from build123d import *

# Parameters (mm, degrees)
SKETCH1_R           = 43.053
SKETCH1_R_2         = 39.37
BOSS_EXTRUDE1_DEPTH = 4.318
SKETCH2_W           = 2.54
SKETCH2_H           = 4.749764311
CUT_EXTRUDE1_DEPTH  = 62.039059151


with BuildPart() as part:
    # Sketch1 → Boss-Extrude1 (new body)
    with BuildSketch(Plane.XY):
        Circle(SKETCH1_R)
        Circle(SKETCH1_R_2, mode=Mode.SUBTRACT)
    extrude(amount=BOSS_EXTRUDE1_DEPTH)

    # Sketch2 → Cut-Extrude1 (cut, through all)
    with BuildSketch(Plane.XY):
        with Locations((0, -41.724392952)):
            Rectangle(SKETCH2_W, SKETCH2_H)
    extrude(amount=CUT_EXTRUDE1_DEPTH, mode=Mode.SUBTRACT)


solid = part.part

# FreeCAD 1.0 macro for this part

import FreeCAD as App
import Part
import Sketcher

V = App.Vector
Q = App.Units.Quantity


def add_polygon(sketch, points):
    """Adds a closed chain of lines whose ends are joined by coincident constraints."""
    first, n = sketch.GeometryCount, len(points)
    for a, b in zip(points, points[1:] + points[:1]):
        sketch.addGeometry(Part.LineSegment(App.Vector(*a, 0), App.Vector(*b, 0)), False)
    for i in range(n):
        sketch.addConstraint(Sketcher.Constraint("Coincident", first + i, 2, first + (i + 1) % n, 1))

doc = App.newDocument("Part")
params = doc.addObject("Spreadsheet::Sheet", "Params")
for row, (alias, value) in enumerate([
    ("sketch1_diameter", "3.1 in"),
    ("sketch1_diameter2", "3.39 in"),
    ("pad1_length", "0.17 in"),
    ("sketch2_width", "0.1 in"),
], start=1):
    params.set(f"A{row}", alias)
    params.set(f"B{row}", "=" + value)
    params.setAlias(f"B{row}", alias)

body = doc.addObject("PartDesign::Body", "Body")

# Sketch on XY plane
sketch1 = body.newObject("Sketcher::SketchObject", "Sketch")
sketch1.AttachmentSupport = (doc.getObject("XY_Plane"), [""])
sketch1.MapMode = "FlatFace"
sketch1.addGeometry(Part.Circle(V(0, 0, 0), V(0, 0, 1), 43.053), False)
sketch1.addGeometry(Part.Circle(V(0, 0, 0), V(0, 0, 1), 39.37), False)
sketch1.addConstraint(Sketcher.Constraint("Coincident", 0, 3, -1, 1))
sketch1.addConstraint(Sketcher.Constraint("Coincident", 1, 3, -1, 1))
sketch1.addConstraint(Sketcher.Constraint("Diameter", 1, Q("3.1 in")))
sketch1.addConstraint(Sketcher.Constraint("Diameter", 0, Q("3.39 in")))
sketch1.setExpression("Constraints[2]", "Params.sketch1_diameter")
sketch1.setExpression("Constraints[3]", "Params.sketch1_diameter2")
pad1 = body.newObject("PartDesign::Pad", "Pad")
pad1.Profile = sketch1
pad1.setExpression("Length", "Params.pad1_length")

# Sketch on XY plane
sketch2 = body.newObject("Sketcher::SketchObject", "Sketch001")
sketch2.AttachmentSupport = (doc.getObject("XY_Plane"), [""])
sketch2.MapMode = "FlatFace"
add_polygon(sketch2, [(-1.27, -39.349511), (-1.27, -44.099275), (1.27, -44.099275), (1.27, -39.349511)])  # lines 0-3
sketch2.addConstraint(Sketcher.Constraint("Vertical", 0))
sketch2.addConstraint(Sketcher.Constraint("Horizontal", 1))
sketch2.addConstraint(Sketcher.Constraint("Vertical", 2))
sketch2.addConstraint(Sketcher.Constraint("Horizontal", 3))
sketch2.addConstraint(Sketcher.Constraint("DistanceX", 1, 1, 1, 2, Q("0.1 in")))
sketch2.addConstraint(Sketcher.Constraint("DistanceX", 0, 2, -1, 1, Q("0.05 in")))
sketch2.addConstraint(Sketcher.Constraint("DistanceY", 0, 2, 0, 1, Q("4.749764 mm")))
sketch2.addConstraint(Sketcher.Constraint("DistanceY", 2, 2, -1, 1, Q("39.349511 mm")))
sketch2.setExpression("Constraints[8]", "Params.sketch2_width")
pocket1 = body.newObject("PartDesign::Pocket", "Pocket")
pocket1.Profile = sketch2
pocket1.Type = "ThroughAll"
pocket1.Reversed = True

doc.recompute()
